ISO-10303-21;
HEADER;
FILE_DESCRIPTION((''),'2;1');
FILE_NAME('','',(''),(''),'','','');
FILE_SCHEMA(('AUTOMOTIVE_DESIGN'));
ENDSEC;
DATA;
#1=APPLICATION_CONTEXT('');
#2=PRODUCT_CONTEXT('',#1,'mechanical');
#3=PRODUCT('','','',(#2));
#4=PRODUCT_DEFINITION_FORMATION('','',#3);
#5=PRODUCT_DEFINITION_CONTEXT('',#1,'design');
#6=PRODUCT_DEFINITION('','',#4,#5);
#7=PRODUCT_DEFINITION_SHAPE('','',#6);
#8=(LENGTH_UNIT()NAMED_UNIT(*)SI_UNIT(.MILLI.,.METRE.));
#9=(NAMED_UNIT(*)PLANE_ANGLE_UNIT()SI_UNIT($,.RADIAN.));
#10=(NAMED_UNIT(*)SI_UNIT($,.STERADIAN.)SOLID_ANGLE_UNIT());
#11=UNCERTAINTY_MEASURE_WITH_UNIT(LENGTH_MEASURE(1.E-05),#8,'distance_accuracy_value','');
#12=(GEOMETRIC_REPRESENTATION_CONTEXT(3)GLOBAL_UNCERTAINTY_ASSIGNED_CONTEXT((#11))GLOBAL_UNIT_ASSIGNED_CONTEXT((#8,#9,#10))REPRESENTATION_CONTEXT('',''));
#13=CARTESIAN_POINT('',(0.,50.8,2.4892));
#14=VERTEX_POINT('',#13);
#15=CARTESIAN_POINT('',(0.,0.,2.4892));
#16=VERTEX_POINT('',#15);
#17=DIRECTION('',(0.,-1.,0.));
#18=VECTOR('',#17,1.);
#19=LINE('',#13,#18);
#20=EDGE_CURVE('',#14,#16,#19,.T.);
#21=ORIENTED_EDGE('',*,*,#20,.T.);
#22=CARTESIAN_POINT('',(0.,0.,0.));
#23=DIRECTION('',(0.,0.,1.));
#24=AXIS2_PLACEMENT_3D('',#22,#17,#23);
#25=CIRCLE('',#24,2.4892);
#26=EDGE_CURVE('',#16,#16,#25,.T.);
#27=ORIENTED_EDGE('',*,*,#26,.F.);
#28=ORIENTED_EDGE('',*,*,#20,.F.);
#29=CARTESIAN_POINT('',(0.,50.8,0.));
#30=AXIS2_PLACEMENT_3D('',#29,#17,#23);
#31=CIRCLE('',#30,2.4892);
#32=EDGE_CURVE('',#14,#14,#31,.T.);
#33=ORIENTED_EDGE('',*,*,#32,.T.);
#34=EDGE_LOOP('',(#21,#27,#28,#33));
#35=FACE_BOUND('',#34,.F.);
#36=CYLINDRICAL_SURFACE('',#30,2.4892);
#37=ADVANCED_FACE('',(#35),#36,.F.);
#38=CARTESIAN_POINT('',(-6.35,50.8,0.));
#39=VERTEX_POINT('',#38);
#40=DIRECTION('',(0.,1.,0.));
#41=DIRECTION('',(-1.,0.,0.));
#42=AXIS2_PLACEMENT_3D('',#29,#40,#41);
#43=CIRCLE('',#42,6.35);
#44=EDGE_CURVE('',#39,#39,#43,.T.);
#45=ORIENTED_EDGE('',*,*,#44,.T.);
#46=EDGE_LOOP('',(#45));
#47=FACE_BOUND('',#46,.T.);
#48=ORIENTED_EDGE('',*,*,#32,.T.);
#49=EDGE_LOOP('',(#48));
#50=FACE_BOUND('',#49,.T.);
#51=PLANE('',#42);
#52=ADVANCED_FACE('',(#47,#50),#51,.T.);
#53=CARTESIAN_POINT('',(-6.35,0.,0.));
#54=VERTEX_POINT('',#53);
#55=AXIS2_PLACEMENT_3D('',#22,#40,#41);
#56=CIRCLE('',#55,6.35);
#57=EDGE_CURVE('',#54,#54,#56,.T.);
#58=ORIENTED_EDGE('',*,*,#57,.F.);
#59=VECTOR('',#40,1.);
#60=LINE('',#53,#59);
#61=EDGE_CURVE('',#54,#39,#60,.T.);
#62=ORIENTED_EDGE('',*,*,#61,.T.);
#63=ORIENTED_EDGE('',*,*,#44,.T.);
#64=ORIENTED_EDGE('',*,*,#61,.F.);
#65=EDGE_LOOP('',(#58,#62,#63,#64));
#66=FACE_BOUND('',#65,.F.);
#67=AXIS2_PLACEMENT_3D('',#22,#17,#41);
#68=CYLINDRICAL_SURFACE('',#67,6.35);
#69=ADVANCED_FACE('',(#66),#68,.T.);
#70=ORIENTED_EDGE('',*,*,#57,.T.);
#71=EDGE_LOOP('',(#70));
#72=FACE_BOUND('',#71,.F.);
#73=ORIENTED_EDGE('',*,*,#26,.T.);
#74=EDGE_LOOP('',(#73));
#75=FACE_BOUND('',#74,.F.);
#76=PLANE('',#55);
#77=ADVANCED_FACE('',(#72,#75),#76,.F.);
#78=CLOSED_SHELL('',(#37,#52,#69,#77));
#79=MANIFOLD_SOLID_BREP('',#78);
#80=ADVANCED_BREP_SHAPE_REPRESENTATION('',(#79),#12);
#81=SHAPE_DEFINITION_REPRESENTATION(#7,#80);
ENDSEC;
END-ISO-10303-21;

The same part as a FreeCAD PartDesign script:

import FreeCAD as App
import Part
import Sketcher
Q = App.Units.Quantity

doc = App.newDocument("Part")
params = doc.addObject("Spreadsheet::Sheet", "Params")
for row, (alias, value) in enumerate([
    ("sketch1_diameter", "0.5 in"),
    ("pad1_length", "2 in"),
    ("sketch2_diameter", "0.196 in"),
    ("hole_diameter", "0.196 in"),
], start=1):
    params.set(f"A{row}", alias)
    params.set(f"B{row}", "=" + value)
    params.setAlias(f"B{row}", alias)

body = doc.addObject("PartDesign::Body", "Body")

sketch1 = body.newObject("Sketcher::SketchObject", "Sketch")
sketch1.AttachmentSupport = (doc.getObject("XZ_Plane"), [""])
sketch1.MapMode = "FlatFace"
sketch1.addGeometry(Part.Circle(App.Vector(0, 0, 0), App.Vector(0, 0, 1), 6), False)
sketch1.addConstraint(Sketcher.Constraint("Coincident", 0, 3, -1, 1))
sketch1.addConstraint(Sketcher.Constraint("Diameter", 0, Q("0.5 in")))
sketch1.setExpression("Constraints[1]", "Params.sketch1_diameter")
pad1 = body.newObject("PartDesign::Pad", "Pad")
pad1.Profile = sketch1
pad1.setExpression("Length", "Params.pad1_length")
pad1.Reversed = True

sketch2 = body.newObject("Sketcher::SketchObject", "Sketch001")
sketch2.AttachmentSupport = (doc.getObject("XZ_Plane"), [""])
sketch2.MapMode = "FlatFace"
sketch2.AttachmentOffset = App.Placement(App.Vector(0, 0, -2 * 25.4), App.Rotation())
sketch2.addGeometry(Part.Circle(App.Vector(0, 0, 0), App.Vector(0, 0, 1), 2.5), False)
sketch2.addConstraint(Sketcher.Constraint("Coincident", 0, 3, -1, 1))
sketch2.addConstraint(Sketcher.Constraint("Diameter", 0, Q("0.196 in")))
sketch2.setExpression("Constraints[1]", "Params.sketch2_diameter")
doc.recompute()
hole = body.newObject("PartDesign::Hole", "Hole")
hole.Profile = sketch2
hole.ThreadType = "None"
hole.setExpression("Diameter", "Params.hole_diameter")
hole.DepthType = "ThroughAll"
hole.Reversed = True

doc.recompute()
